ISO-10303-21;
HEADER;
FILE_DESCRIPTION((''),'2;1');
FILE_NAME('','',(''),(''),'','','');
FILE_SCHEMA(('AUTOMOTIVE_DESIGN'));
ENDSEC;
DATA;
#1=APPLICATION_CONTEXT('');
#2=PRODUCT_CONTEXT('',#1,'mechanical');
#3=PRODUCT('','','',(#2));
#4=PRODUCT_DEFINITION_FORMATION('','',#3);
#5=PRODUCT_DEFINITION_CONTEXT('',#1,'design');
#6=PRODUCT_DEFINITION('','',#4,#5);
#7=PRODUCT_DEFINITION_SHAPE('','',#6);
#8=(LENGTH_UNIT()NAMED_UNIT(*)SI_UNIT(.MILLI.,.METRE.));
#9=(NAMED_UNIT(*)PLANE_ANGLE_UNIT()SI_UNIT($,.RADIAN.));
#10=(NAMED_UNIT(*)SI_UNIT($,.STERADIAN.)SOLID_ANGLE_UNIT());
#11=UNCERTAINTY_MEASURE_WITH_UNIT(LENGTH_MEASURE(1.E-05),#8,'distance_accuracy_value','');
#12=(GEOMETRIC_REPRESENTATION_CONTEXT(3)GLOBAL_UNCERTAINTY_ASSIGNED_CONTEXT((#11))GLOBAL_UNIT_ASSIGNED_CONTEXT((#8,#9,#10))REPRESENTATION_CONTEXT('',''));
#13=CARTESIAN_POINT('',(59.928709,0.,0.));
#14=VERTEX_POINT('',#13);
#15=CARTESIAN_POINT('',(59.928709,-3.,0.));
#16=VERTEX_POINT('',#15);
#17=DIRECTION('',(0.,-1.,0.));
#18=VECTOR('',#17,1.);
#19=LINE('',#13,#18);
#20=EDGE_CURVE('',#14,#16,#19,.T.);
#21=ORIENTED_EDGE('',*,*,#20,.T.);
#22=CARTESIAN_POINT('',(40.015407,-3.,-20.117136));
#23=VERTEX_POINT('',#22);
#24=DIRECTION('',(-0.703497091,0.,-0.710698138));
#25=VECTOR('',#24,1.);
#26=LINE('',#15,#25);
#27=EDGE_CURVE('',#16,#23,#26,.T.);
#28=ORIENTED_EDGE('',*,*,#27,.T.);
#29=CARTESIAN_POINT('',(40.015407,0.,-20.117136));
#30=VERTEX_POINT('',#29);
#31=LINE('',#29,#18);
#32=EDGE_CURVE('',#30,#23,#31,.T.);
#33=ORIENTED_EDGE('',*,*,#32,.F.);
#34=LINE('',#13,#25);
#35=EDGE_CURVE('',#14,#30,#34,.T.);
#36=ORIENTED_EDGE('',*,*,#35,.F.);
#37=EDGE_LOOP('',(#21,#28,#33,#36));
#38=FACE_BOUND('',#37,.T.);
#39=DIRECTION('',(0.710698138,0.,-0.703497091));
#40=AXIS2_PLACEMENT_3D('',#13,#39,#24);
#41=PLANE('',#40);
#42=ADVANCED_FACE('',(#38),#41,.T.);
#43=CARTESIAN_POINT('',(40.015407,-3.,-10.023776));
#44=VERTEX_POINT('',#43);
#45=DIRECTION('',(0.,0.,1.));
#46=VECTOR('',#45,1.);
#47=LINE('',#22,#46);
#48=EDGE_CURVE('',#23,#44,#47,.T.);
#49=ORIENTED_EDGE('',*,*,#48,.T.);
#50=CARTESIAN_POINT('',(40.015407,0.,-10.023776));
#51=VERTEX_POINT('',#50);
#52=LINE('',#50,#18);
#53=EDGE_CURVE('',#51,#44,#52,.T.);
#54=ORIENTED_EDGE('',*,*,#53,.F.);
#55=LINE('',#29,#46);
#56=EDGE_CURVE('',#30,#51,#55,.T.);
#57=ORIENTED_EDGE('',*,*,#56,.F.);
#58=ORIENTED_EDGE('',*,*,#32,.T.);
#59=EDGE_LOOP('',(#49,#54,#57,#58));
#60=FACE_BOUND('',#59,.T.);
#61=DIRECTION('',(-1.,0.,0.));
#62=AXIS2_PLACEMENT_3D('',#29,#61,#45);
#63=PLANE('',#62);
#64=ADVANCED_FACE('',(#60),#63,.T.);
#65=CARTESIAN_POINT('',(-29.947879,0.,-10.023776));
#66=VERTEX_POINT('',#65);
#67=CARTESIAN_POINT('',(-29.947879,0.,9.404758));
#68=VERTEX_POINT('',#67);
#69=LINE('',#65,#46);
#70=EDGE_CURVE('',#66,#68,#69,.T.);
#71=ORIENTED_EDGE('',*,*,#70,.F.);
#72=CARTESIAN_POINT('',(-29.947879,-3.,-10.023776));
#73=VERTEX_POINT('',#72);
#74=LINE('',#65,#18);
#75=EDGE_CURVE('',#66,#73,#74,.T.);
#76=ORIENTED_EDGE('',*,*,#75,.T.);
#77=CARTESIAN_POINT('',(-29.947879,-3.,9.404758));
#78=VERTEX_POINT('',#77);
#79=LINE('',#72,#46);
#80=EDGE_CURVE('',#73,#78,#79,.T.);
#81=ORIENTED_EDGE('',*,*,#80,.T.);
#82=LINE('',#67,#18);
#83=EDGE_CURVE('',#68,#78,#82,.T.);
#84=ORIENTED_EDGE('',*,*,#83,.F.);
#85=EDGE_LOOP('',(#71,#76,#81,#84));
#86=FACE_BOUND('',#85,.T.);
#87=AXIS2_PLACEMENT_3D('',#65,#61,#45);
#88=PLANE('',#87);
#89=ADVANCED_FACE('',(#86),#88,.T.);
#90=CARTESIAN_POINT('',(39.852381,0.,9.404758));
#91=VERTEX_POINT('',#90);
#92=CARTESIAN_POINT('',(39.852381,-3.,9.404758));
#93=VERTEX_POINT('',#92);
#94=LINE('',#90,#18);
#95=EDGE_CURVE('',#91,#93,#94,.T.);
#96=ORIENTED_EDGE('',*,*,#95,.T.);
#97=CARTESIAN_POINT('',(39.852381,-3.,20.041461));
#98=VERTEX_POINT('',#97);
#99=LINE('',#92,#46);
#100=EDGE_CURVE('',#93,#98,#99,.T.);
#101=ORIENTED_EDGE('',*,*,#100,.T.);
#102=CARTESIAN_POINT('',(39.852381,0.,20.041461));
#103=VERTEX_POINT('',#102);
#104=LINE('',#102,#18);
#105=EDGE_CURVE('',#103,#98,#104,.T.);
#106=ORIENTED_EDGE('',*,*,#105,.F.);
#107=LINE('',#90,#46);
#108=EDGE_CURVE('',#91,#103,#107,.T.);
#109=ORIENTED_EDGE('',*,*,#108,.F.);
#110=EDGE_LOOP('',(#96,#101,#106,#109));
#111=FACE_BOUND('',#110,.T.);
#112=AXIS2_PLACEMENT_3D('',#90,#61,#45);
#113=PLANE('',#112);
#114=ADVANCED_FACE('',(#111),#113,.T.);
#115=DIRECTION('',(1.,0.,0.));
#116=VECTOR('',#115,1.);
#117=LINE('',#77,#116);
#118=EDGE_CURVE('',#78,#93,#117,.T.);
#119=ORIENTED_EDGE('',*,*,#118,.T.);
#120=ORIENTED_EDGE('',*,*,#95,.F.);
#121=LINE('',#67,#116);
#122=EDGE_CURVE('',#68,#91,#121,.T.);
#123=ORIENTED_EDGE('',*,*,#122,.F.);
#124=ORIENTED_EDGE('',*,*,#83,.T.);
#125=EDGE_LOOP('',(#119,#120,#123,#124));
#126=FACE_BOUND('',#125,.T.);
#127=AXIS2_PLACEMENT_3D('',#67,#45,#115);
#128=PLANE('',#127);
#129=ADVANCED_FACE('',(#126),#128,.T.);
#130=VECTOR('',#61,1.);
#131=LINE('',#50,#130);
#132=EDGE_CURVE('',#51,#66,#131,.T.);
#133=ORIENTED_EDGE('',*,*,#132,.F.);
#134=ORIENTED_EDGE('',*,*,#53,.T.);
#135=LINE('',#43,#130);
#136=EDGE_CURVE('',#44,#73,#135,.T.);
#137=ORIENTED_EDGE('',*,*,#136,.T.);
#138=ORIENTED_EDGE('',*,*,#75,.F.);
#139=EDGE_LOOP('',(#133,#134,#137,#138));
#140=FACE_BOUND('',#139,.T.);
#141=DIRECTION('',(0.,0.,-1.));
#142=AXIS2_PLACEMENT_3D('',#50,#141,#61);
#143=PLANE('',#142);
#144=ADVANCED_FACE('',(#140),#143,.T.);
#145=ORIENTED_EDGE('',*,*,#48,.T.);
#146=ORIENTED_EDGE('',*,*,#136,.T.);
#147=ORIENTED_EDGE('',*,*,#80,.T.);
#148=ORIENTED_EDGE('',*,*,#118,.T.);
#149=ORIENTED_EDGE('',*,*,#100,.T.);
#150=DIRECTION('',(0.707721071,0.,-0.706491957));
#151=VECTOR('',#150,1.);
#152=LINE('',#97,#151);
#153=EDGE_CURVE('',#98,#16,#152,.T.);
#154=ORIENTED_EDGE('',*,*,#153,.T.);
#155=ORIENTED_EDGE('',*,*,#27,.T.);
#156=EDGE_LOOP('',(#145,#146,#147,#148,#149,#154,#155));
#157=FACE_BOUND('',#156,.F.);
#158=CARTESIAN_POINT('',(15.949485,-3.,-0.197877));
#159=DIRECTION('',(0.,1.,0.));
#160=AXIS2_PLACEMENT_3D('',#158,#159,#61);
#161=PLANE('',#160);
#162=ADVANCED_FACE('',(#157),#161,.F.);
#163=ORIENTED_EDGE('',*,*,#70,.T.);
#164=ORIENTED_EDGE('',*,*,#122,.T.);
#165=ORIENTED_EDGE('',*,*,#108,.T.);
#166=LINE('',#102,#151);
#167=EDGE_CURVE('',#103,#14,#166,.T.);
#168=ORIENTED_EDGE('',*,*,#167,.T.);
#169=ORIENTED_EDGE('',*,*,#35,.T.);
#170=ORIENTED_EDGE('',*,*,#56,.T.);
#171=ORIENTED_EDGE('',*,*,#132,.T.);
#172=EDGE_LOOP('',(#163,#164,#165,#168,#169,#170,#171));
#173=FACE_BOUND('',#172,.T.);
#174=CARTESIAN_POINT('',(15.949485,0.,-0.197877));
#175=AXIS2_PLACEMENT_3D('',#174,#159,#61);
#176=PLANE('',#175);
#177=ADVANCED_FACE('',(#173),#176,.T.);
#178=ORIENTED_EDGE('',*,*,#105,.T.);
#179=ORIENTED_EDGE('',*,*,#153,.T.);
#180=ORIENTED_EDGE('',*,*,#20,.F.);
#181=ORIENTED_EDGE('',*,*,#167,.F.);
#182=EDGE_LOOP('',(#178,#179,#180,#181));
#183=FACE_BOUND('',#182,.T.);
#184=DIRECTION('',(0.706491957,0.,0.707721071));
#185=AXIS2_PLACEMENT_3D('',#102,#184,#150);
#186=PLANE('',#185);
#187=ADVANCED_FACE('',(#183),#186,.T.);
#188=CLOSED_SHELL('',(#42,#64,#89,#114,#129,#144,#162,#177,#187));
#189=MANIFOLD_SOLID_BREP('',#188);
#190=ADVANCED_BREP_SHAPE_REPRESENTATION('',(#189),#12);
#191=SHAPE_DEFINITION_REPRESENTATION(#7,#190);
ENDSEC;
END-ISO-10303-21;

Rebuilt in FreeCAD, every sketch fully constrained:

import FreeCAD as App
import Part
import Sketcher
Q = App.Units.Quantity

doc = App.newDocument("Part")
body = doc.addObject("PartDesign::Body", "Body")

# Sketch on XZ plane
sketch1 = body.newObject("Sketcher::SketchObject", "Sketch")
sketch1.AttachmentSupport = (doc.getObject("XZ_Plane"), [""])
sketch1.MapMode = "FlatFace"
sketch1.addGeometry(Part.LineSegment(App.Vector(39.852381, 9.404758, 0), App.Vector(-29.947879, 9.404758, 0)), False)
sketch1.addGeometry(Part.LineSegment(App.Vector(-29.947879, 9.404758, 0), App.Vector(-29.947879, -10.023776, 0)), False)
sketch1.addGeometry(Part.LineSegment(App.Vector(-29.947879, -10.023776, 0), App.Vector(40.015407, -10.023776, 0)), False)
sketch1.addGeometry(Part.LineSegment(App.Vector(40.015407, -10.023776, 0), App.Vector(40.015407, -20.117136, 0)), False)
sketch1.addGeometry(Part.LineSegment(App.Vector(40.015407, -20.117136, 0), App.Vector(59.928709, 0, 0)), False)
sketch1.addGeometry(Part.LineSegment(App.Vector(59.928709, 0, 0), App.Vector(39.852381, 20.041461, 0)), False)
sketch1.addGeometry(Part.LineSegment(App.Vector(39.852381, 20.041461, 0), App.Vector(39.852381, 9.404758, 0)), False)
sketch1.addConstraint(Sketcher.Constraint("Coincident", 0, 2, 1, 1))
sketch1.addConstraint(Sketcher.Constraint("Coincident", 1, 2, 2, 1))
sketch1.addConstraint(Sketcher.Constraint("Coincident", 2, 2, 3, 1))
sketch1.addConstraint(Sketcher.Constraint("Coincident", 3, 2, 4, 1))
sketch1.addConstraint(Sketcher.Constraint("Coincident", 4, 2, 5, 1))
sketch1.addConstraint(Sketcher.Constraint("Coincident", 5, 2, 6, 1))
sketch1.addConstraint(Sketcher.Constraint("Coincident", 6, 2, 0, 1))
sketch1.addConstraint(Sketcher.Constraint("Horizontal", 0))
sketch1.addConstraint(Sketcher.Constraint("Vertical", 1))
sketch1.addConstraint(Sketcher.Constraint("Horizontal", 2))
sketch1.addConstraint(Sketcher.Constraint("Vertical", 3))
sketch1.addConstraint(Sketcher.Constraint("Vertical", 6))
sketch1.addConstraint(Sketcher.Constraint("PointOnObject", 4, 2, -1))
sketch1.addConstraint(Sketcher.Constraint("DistanceX", 0, 2, 0, 1, Q("69.80026 mm")))
sketch1.addConstraint(Sketcher.Constraint("DistanceY", 3, 2, 3, 1, Q("10.09336 mm")))
sketch1.addConstraint(Sketcher.Constraint("DistanceX", 2, 2, 4, 2, Q("19.913302 mm")))
sketch1.addConstraint(Sketcher.Constraint("Distance", 4, Q("28.306161 mm")))
sketch1.addConstraint(Sketcher.Constraint("Distance", 5, Q("28.367571 mm")))
sketch1.addConstraint(Sketcher.Constraint("DistanceX", 2, 1, 2, 2, Q("69.963286 mm")))
sketch1.addConstraint(Sketcher.Constraint("DistanceY", 1, 2, 1, 1, Q("19.428534 mm")))
sketch1.addConstraint(Sketcher.Constraint("DistanceX", 0, 2, -1, 1, Q("29.947879 mm")))
pad1 = body.newObject("PartDesign::Pad", "Pad")
pad1.Profile = sketch1
pad1.Length = 3

doc.recompute()
